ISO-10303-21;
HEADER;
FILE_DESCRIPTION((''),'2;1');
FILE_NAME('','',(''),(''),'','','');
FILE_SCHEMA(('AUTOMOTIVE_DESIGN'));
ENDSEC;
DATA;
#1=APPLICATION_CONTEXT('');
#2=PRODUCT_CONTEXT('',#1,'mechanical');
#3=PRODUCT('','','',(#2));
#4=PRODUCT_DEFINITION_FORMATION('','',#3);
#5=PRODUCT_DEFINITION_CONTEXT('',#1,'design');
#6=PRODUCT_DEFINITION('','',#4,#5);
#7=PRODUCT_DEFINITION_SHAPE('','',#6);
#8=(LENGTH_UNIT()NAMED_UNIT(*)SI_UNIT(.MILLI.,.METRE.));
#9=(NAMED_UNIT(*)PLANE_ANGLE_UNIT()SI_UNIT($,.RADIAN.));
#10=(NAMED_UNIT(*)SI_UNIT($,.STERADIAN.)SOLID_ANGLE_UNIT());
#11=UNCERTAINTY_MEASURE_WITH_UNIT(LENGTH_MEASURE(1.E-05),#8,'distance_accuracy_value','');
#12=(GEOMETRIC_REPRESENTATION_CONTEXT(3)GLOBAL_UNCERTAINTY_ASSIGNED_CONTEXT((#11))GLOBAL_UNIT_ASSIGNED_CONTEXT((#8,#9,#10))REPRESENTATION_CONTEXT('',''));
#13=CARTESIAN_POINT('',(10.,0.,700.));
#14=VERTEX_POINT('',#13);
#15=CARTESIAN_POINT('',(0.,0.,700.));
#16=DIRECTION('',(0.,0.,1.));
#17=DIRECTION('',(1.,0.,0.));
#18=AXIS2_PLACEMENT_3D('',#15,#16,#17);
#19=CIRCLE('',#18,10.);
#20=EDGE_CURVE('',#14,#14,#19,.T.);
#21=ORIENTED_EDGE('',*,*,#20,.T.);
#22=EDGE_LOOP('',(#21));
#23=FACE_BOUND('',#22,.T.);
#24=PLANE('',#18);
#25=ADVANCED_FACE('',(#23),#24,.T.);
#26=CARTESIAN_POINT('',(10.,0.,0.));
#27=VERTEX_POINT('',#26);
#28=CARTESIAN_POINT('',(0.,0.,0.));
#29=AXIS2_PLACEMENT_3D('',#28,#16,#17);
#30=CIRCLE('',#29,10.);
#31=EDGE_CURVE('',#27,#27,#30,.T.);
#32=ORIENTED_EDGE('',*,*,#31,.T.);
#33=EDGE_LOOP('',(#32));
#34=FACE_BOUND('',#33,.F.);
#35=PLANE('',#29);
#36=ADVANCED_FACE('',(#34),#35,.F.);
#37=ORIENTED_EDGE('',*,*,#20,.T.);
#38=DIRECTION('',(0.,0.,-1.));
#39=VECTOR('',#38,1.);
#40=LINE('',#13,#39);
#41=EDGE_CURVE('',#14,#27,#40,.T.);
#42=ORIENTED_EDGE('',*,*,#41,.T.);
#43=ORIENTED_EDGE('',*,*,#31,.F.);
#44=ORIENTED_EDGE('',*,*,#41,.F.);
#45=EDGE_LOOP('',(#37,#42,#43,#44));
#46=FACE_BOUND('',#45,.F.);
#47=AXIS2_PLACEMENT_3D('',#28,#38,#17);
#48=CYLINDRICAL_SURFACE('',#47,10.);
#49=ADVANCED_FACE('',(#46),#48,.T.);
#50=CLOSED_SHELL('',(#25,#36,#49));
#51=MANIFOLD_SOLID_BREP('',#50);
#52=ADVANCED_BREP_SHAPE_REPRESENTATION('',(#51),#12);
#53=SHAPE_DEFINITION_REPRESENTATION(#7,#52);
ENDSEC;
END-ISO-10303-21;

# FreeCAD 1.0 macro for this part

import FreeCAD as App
import Part
import Sketcher
Q = App.Units.Quantity

doc = App.newDocument("Part")
body = doc.addObject("PartDesign::Body", "Body")

# Sketch on XY plane
sketch1 = doc.addObject("Sketcher::SketchObject", "Sketch")
body.addObject(sketch1)
sketch1.AttachmentSupport = (doc.XY_Plane, [""])
sketch1.MapMode = "FlatFace"
sketch1.addGeometry(Part.Circle(App.Vector(0, 0, 0), App.Vector(0, 0, 1), 10), False)
sketch1.addConstraint(Sketcher.Constraint("Coincident", 0, 3, -1, 1))
sketch1.addConstraint(Sketcher.Constraint("Diameter", 0, Q("20 mm")))
pad1 = doc.addObject("PartDesign::Pad", "Pad")
body.addObject(pad1)
pad1.Profile = sketch1
pad1.Length = 300

# Sketch on XY plane
sketch2 = doc.addObject("Sketcher::SketchObject", "Sketch001")
body.addObject(sketch2)
sketch2.AttachmentSupport = (doc.XY_Plane, [""])
sketch2.MapMode = "FlatFace"
sketch2.AttachmentOffset = App.Placement(App.Vector(0, 0, 300), App.Rotation())
sketch2.addGeometry(Part.Circle(App.Vector(0, 0, 0), App.Vector(0, 0, 1), 10), False)
sketch2.addConstraint(Sketcher.Constraint("Coincident", 0, 3, -1, 1))
sketch2.addConstraint(Sketcher.Constraint("Diameter", 0, Q("20 mm")))
pad2 = doc.addObject("PartDesign::Pad", "Pad001")
body.addObject(pad2)
pad2.Profile = sketch2
pad2.Length = 400

doc.recompute()
